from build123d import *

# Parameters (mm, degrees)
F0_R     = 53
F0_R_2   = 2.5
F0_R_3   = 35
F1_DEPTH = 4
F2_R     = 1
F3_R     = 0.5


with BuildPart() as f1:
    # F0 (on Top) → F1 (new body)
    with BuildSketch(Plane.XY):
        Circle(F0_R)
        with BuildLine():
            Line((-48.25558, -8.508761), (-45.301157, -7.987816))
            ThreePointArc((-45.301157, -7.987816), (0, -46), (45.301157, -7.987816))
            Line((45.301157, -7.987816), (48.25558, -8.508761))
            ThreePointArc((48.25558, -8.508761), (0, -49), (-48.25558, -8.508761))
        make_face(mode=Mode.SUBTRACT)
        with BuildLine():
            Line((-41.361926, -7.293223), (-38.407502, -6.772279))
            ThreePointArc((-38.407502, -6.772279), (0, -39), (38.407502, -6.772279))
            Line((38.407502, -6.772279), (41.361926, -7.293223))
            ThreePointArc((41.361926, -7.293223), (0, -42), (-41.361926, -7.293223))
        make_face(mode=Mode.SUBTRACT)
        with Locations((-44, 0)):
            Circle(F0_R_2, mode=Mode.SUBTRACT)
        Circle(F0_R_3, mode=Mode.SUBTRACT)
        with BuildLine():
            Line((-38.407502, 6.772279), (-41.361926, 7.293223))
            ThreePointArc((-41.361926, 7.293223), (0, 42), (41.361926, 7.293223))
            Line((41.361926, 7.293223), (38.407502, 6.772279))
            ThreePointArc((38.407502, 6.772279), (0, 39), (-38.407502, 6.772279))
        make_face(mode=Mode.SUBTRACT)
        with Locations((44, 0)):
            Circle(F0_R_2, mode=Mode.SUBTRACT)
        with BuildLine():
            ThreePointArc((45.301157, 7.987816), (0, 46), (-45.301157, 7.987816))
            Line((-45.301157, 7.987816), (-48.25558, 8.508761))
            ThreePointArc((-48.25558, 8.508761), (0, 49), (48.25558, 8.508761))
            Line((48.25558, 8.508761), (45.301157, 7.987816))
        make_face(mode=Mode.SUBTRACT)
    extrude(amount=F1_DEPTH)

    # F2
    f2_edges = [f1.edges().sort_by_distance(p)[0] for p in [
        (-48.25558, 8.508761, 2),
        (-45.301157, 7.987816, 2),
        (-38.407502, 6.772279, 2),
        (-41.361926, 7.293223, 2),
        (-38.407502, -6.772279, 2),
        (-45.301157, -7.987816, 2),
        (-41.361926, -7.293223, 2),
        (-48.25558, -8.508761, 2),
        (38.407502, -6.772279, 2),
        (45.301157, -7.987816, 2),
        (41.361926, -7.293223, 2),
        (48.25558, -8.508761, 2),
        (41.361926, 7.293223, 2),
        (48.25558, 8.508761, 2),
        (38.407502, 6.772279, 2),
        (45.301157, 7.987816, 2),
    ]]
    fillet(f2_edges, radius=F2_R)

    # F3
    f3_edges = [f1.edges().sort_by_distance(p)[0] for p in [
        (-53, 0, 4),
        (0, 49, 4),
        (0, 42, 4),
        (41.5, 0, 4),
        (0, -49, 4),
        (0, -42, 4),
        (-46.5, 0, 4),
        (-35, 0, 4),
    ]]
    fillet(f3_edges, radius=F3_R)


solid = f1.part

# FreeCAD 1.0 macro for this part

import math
import FreeCAD as App
import Part
import Sketcher

V = App.Vector
Q = App.Units.Quantity


def edges_at(feature, points):
    """Names of the edges that pass closest to the given points."""
    edges = feature.Shape.Edges
    near = lambda p: min(range(len(edges)), key=lambda i: edges[i].distToShape(Part.Vertex(*p))[0])
    return sorted({f"Edge{near(p) + 1}" for p in points})

doc = App.newDocument("Part")
body = doc.addObject("PartDesign::Body", "Body")

# Sketch on XY plane
sketch1 = body.newObject("Sketcher::SketchObject", "Sketch")
sketch1.AttachmentSupport = (doc.getObject("XY_Plane"), [""])
sketch1.MapMode = "FlatFace"
sketch1.addGeometry(Part.Circle(V(0, 0, 0), V(0, 0, 1), 53), False)
sketch1.addGeometry(Part.Circle(V(-44, 0, 0), V(0, 0, 1), 2.5), False)
sketch1.addGeometry(Part.ArcOfCircle(Part.Circle(V(0, 0, 0), V(0, 0, 1), 42), math.radians(-170), math.radians(-10)), False)
sketch1.addGeometry(Part.LineSegment(V(-41.4, -7.3, 0), V(-38.4, -6.8, 0)), False)
sketch1.addGeometry(Part.ArcOfCircle(Part.Circle(V(0, 0, 0), V(0, 0, 1), 39), math.radians(-170), math.radians(-10)), False)
sketch1.addGeometry(Part.LineSegment(V(38.4, -6.8, 0), V(41.4, -7.3, 0)), False)
sketch1.addGeometry(Part.ArcOfCircle(Part.Circle(V(0, 0, 0), V(0, 0, 1), 49), math.radians(-170), math.radians(-10)), False)
sketch1.addGeometry(Part.LineSegment(V(-48.3, -8.5, 0), V(-45.3, -8, 0)), False)
sketch1.addGeometry(Part.ArcOfCircle(Part.Circle(V(0, 0, 0), V(0, 0, 1), 46), math.radians(-170), math.radians(-10)), False)
sketch1.addGeometry(Part.LineSegment(V(45.3, -8, 0), V(48.3, -8.5, 0)), False)
sketch1.addGeometry(Part.Circle(V(0, 0, 0), V(0, 0, 1), 35), False)
sketch1.addGeometry(Part.Circle(V(44, 0, 0), V(0, 0, 1), 2.5), False)
sketch1.addGeometry(Part.ArcOfCircle(Part.Circle(V(0, 0, 0), V(0, 0, 1), 39), math.radians(10), math.radians(170)), False)
sketch1.addGeometry(Part.LineSegment(V(-38.4, 6.8, 0), V(-41.4, 7.3, 0)), False)
sketch1.addGeometry(Part.ArcOfCircle(Part.Circle(V(0, 0, 0), V(0, 0, 1), 42), math.radians(10), math.radians(170)), False)
sketch1.addGeometry(Part.LineSegment(V(41.4, 7.3, 0), V(38.4, 6.8, 0)), False)
sketch1.addGeometry(Part.LineSegment(V(48.3, 8.5, 0), V(45.3, 8, 0)), False)
sketch1.addGeometry(Part.ArcOfCircle(Part.Circle(V(0, 0, 0), V(0, 0, 1), 46), math.radians(10), math.radians(170)), False)
sketch1.addGeometry(Part.LineSegment(V(-45.3, 8, 0), V(-48.3, 8.5, 0)), False)
sketch1.addGeometry(Part.ArcOfCircle(Part.Circle(V(0, 0, 0), V(0, 0, 1), 49), math.radians(10), math.radians(170)), False)
sketch1.addConstraint(Sketcher.Constraint("Coincident", 2, 1, 3, 1))
sketch1.addConstraint(Sketcher.Constraint("Coincident", 3, 2, 4, 1))
sketch1.addConstraint(Sketcher.Constraint("Coincident", 4, 2, 5, 1))
sketch1.addConstraint(Sketcher.Constraint("Coincident", 5, 2, 2, 2))
sketch1.addConstraint(Sketcher.Constraint("Coincident", 6, 1, 7, 1))
sketch1.addConstraint(Sketcher.Constraint("Coincident", 7, 2, 8, 1))
sketch1.addConstraint(Sketcher.Constraint("Coincident", 8, 2, 9, 1))
sketch1.addConstraint(Sketcher.Constraint("Coincident", 9, 2, 6, 2))
sketch1.addConstraint(Sketcher.Constraint("Coincident", 12, 2, 13, 1))
sketch1.addConstraint(Sketcher.Constraint("Coincident", 13, 2, 14, 2))
sketch1.addConstraint(Sketcher.Constraint("Coincident", 14, 1, 15, 1))
sketch1.addConstraint(Sketcher.Constraint("Coincident", 15, 2, 12, 1))
sketch1.addConstraint(Sketcher.Constraint("Coincident", 16, 2, 17, 1))
sketch1.addConstraint(Sketcher.Constraint("Coincident", 17, 2, 18, 1))
sketch1.addConstraint(Sketcher.Constraint("Coincident", 18, 2, 19, 2))
sketch1.addConstraint(Sketcher.Constraint("Coincident", 19, 1, 16, 1))
sketch1.addConstraint(Sketcher.Constraint("Coincident", 0, 3, -1, 1))
sketch1.addConstraint(Sketcher.Constraint("Coincident", 2, 3, -1, 1))
sketch1.addConstraint(Sketcher.Constraint("Coincident", 4, 3, -1, 1))
sketch1.addConstraint(Sketcher.Constraint("Coincident", 6, 3, -1, 1))
sketch1.addConstraint(Sketcher.Constraint("Coincident", 8, 3, -1, 1))
sketch1.addConstraint(Sketcher.Constraint("Coincident", 10, 3, -1, 1))
sketch1.addConstraint(Sketcher.Constraint("Coincident", 12, 3, -1, 1))
sketch1.addConstraint(Sketcher.Constraint("Coincident", 14, 3, -1, 1))
sketch1.addConstraint(Sketcher.Constraint("Coincident", 17, 3, -1, 1))
sketch1.addConstraint(Sketcher.Constraint("Coincident", 19, 3, -1, 1))
sketch1.addConstraint(Sketcher.Constraint("Equal", 1, 11))
sketch1.addConstraint(Sketcher.Constraint("Equal", 4, 12))
sketch1.addConstraint(Sketcher.Constraint("Equal", 2, 14))
sketch1.addConstraint(Sketcher.Constraint("Equal", 8, 17))
sketch1.addConstraint(Sketcher.Constraint("Equal", 6, 19))
sketch1.addConstraint(Sketcher.Constraint("Symmetric", 1, 3, 11, 3, -1, 1))
sketch1.addConstraint(Sketcher.Constraint("PointOnObject", 1, 3, -1))
sketch1.addConstraint(Sketcher.Constraint("Parallel", 3, 7))
sketch1.addConstraint(Sketcher.Constraint("Parallel", 5, 9))
sketch1.addConstraint(Sketcher.Constraint("Parallel", 9, 13))
sketch1.addConstraint(Sketcher.Constraint("Parallel", 7, 15))
sketch1.addConstraint(Sketcher.Constraint("Parallel", 15, 16))
sketch1.addConstraint(Sketcher.Constraint("Parallel", 13, 18))
sketch1.addConstraint(Sketcher.Constraint("Horizontal", 3, 2, 4, 2))
sketch1.addConstraint(Sketcher.Constraint("Horizontal", 2, 1, 5, 2))
sketch1.addConstraint(Sketcher.Constraint("Horizontal", 7, 2, 8, 2))
sketch1.addConstraint(Sketcher.Constraint("Horizontal", 13, 2, 14, 1))
sketch1.addConstraint(Sketcher.Constraint("Horizontal", 16, 2, 17, 2))
sketch1.addConstraint(Sketcher.Constraint("Vertical", 3, 2, 12, 2))
sketch1.addConstraint(Sketcher.Constraint("Vertical", 8, 2, 16, 2))
sketch1.addConstraint(Sketcher.Constraint("Equal", 5, 7))
sketch1.addConstraint(Sketcher.Constraint("Diameter", 0, 106.0))
sketch1.addConstraint(Sketcher.Constraint("Diameter", 1, 5.0))
sketch1.addConstraint(Sketcher.Constraint("Diameter", 10, 70.0))
sketch1.addConstraint(Sketcher.Constraint("Radius", 2, 42.0))
sketch1.addConstraint(Sketcher.Constraint("Radius", 4, 39.0))
sketch1.addConstraint(Sketcher.Constraint("Radius", 6, 49.0))
sketch1.addConstraint(Sketcher.Constraint("Angle", 3, Q("9.999988 deg")))
sketch1.addConstraint(Sketcher.Constraint("DistanceX", 1, 3, -1, 1, 44.0))
sketch1.addConstraint(Sketcher.Constraint("DistanceY", 3, 2, -1, 1, 6.772279))
sketch1.addConstraint(Sketcher.Constraint("DistanceX", 6, 1, -1, 1, 48.25558))
pad1 = body.newObject("PartDesign::Pad", "Pad")
pad1.Profile = sketch1
pad1.Length = 4
doc.recompute()

fillet = body.newObject("PartDesign::Fillet", "Fillet")
fillet.Base = (pad1, edges_at(pad1, [
    (-48.256, 8.509, 2),
    (-45.301, 7.988, 2),
    (-38.408, 6.772, 2),
    (-41.362, 7.293, 2),
    (-38.408, -6.772, 2),
    (-45.301, -7.988, 2),
    (-41.362, -7.293, 2),
    (-48.256, -8.509, 2),
    (38.408, -6.772, 2),
    (45.301, -7.988, 2),
    (41.362, -7.293, 2),
    (48.256, -8.509, 2),
    (41.362, 7.293, 2),
    (48.256, 8.509, 2),
    (38.408, 6.772, 2),
    (45.301, 7.988, 2),
]))
fillet.Radius = 1
doc.recompute()

fillet2 = body.newObject("PartDesign::Fillet", "Fillet001")
fillet2.Base = (fillet, edges_at(fillet, [
    (-53, 0, 4),
    (0, 49, 4),
    (0, 42, 4),
    (41.5, 0, 4),
    (0, -49, 4),
    (0, -42, 4),
    (-46.5, 0, 4),
    (-35, 0, 4),
]))
fillet2.Radius = 0.5

doc.recompute()
